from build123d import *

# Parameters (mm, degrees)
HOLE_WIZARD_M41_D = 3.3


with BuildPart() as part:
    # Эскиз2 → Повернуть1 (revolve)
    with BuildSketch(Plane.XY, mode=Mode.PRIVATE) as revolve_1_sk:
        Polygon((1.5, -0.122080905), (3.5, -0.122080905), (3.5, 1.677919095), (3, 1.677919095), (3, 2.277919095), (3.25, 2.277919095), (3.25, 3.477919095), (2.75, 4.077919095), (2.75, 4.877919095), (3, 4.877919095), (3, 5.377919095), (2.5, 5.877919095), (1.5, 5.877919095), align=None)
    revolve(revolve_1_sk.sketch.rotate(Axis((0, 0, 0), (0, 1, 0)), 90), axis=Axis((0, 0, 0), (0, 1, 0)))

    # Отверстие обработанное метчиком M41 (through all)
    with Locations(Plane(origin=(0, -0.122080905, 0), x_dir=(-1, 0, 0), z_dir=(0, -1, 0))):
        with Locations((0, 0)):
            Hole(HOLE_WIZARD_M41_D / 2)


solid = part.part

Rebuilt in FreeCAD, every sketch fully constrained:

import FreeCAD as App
import Part
import Sketcher

V = App.Vector
Q = App.Units.Quantity


def add_polygon(sketch, points):
    """Adds a closed chain of lines whose ends are joined by coincident constraints."""
    first, n = sketch.GeometryCount, len(points)
    for a, b in zip(points, points[1:] + points[:1]):
        sketch.addGeometry(Part.LineSegment(App.Vector(*a, 0), App.Vector(*b, 0)), False)
    for i in range(n):
        sketch.addConstraint(Sketcher.Constraint("Coincident", first + i, 2, first + (i + 1) % n, 1))

doc = App.newDocument("Part")
body = doc.addObject("PartDesign::Body", "Body")

sketch1 = body.newObject("Sketcher::SketchObject", "Sketch")
sketch1.AttachmentSupport = (doc.getObject("XY_Plane"), [""])
sketch1.MapMode = "FlatFace"
add_polygon(sketch1, [(1.5, -0.12), (3.5, -0.12), (3.5, 1.68), (3, 1.68), (3, 2.28), (3.25, 2.28), (3.25, 3.48), (2.75, 4.08), (2.75, 4.88), (3, 4.88), (3, 5.38), (2.5, 5.88), (1.5, 5.88)])
sketch1.addConstraint([
    Sketcher.Constraint("Horizontal", 0),
    Sketcher.Constraint("Vertical", 1),
    Sketcher.Constraint("Horizontal", 2),
    Sketcher.Constraint("Vertical", 3),
    Sketcher.Constraint("Horizontal", 4),
    Sketcher.Constraint("Vertical", 5),
    Sketcher.Constraint("Vertical", 7),
    Sketcher.Constraint("Horizontal", 8),
    Sketcher.Constraint("Vertical", 9),
    Sketcher.Constraint("Horizontal", 11),
    Sketcher.Constraint("Vertical", 12),
    Sketcher.Constraint("Vertical", 3, 2, 8, 2),
    Sketcher.Constraint("Equal", 4, 8),
    Sketcher.Constraint("Equal", 2, 9),
    Sketcher.Constraint("DistanceX", 0, 1, 0, 2, 2.0),
    Sketcher.Constraint("DistanceX", 11, 2, 11, 1, 1.0),
    Sketcher.Constraint("DistanceY", 12, 2, 12, 1, 6.0),
    Sketcher.Constraint("Angle", 10, Q("135 deg")),
    Sketcher.Constraint("DistanceX", 2, 2, 2, 1, 0.5),
    Sketcher.Constraint("DistanceY", 1, 1, 1, 2, 1.8),
    Sketcher.Constraint("DistanceY", 3, 1, 3, 2, 0.6),
    Sketcher.Constraint("DistanceY", 5, 1, 5, 2, 1.2),
    Sketcher.Constraint("DistanceY", 7, 1, 7, 2, 0.8),
    Sketcher.Constraint("DistanceX", -1, 1, 2, 2, 3.0),
    Sketcher.Constraint("DistanceX", 4, 1, 4, 2, 0.25),
    Sketcher.Constraint("DistanceY", 0, 2, -1, 1, 0.122081),
])
revolution = body.newObject("PartDesign::Revolution", "Revolution")
revolution.Profile = sketch1
revolution.ReferenceAxis = (sketch1, ["V_Axis"])
revolution.Angle = 360

sketch2 = body.newObject("Sketcher::SketchObject", "Sketch001")
sketch2.AttachmentSupport = (doc.getObject("XZ_Plane"), [""])
sketch2.MapMode = "FlatFace"
sketch2.AttachmentOffset = App.Placement(V(0, 0, 0.122081), App.Rotation())
sketch2.addGeometry(Part.Circle(V(0, 0, 0), V(0, 0, 1), 1.6), False)
sketch2.addConstraint([
    Sketcher.Constraint("Coincident", 0, 3, -1, 1),
    Sketcher.Constraint("Diameter", 0, 3.3),
])
doc.recompute()
hole = body.newObject("PartDesign::Hole", "Hole")
hole.Profile = sketch2
hole.ThreadType = "None"
hole.Diameter = 3.3
hole.DepthType = "ThroughAll"

doc.recompute()
